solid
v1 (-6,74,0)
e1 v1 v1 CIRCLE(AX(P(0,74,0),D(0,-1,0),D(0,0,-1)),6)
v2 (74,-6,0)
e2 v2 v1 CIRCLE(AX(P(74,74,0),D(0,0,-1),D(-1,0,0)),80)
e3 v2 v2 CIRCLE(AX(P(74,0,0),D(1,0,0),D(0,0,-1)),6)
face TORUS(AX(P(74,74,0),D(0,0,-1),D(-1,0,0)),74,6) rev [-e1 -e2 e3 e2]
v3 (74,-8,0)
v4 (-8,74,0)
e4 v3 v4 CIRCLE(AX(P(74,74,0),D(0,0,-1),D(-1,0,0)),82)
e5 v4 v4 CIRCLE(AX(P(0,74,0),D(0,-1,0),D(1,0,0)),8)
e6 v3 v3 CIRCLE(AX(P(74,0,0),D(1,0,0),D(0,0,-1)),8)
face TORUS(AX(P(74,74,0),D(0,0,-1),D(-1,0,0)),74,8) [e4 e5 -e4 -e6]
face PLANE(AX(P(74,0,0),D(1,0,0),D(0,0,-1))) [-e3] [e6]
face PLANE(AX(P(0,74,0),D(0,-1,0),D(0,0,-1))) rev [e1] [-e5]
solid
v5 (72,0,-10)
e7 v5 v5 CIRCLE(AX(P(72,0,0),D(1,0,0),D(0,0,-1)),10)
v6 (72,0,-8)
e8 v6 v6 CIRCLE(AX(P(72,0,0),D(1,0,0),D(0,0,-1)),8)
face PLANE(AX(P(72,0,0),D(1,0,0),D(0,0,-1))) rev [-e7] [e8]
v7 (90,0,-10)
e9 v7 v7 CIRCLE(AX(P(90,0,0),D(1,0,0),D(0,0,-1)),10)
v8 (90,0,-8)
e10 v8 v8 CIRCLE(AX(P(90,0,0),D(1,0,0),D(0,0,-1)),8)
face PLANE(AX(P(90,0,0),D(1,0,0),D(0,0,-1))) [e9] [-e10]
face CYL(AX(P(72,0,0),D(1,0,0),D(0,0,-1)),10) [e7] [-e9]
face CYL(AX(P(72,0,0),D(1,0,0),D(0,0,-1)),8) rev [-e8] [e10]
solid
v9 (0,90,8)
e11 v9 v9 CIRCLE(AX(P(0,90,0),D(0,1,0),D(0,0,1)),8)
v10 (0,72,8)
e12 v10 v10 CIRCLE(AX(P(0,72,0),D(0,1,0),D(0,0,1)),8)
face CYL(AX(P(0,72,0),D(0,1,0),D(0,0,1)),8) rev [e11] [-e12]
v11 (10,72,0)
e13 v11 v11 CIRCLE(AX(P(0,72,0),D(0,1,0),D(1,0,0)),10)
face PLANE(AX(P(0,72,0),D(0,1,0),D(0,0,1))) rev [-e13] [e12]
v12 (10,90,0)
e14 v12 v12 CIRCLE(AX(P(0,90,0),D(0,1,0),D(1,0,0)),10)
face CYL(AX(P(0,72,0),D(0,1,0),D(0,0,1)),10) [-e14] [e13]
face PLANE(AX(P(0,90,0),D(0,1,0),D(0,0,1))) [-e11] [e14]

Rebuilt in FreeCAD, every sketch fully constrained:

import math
import FreeCAD as App
import Part
import Sketcher

V = App.Vector

doc = App.newDocument("Part")
params = doc.addObject("Spreadsheet::Sheet", "Params")
for row, (alias, value) in enumerate([
    ("sketch1_diameter", "16 mm"),
    ("sketch1_diameter2", "12 mm"),
    ("sketch2_radius", "74 mm"),
    ("sketch3_diameter", "20 mm"),
    ("sketch3_diameter2", "16 mm"),
    ("pad1_length", "16 mm"),
    ("pad1_length2", "2 mm"),
    ("sketch4_diameter", "20 mm"),
    ("sketch4_diameter2", "16 mm"),
    ("pad2_length", "16 mm"),
    ("pad2_length2", "2 mm"),
], start=1):
    params.set(f"A{row}", alias)
    params.set(f"B{row}", "=" + value)
    params.setAlias(f"B{row}", alias)

body = doc.addObject("PartDesign::Body", "Body")

# Sketch on YZ plane
sketch1 = body.newObject("Sketcher::SketchObject", "Sketch")
sketch1.AttachmentSupport = (doc.getObject("YZ_Plane"), [""])
sketch1.MapMode = "FlatFace"
sketch1.AttachmentOffset = App.Placement(V(0, 0, 74), App.Rotation())
sketch1.addGeometry(Part.Circle(V(0, 0, 0), V(0, 0, 1), 8), False)
sketch1.addGeometry(Part.Circle(V(0, 0, 0), V(0, 0, 1), 6), False)
sketch1.addConstraint(Sketcher.Constraint("Coincident", 0, 3, -1, 1))
sketch1.addConstraint(Sketcher.Constraint("Coincident", 1, 3, -1, 1))
sketch1.addConstraint(Sketcher.Constraint("Diameter", 0, 16.0))
sketch1.addConstraint(Sketcher.Constraint("Diameter", 1, 12.0))
sketch1.setExpression("Constraints[2]", "Params.sketch1_diameter")
sketch1.setExpression("Constraints[3]", "Params.sketch1_diameter2")

# Sketch on XY plane
sketch2 = body.newObject("Sketcher::SketchObject", "Sketch001")
sketch2.AttachmentSupport = (doc.getObject("XY_Plane"), [""])
sketch2.MapMode = "FlatFace"
sketch2.addGeometry(Part.ArcOfCircle(Part.Circle(V(74, 74, 0), V(0, 0, 1), 74), math.radians(180), math.radians(270)), False)
sketch2.addConstraint(Sketcher.Constraint("PointOnObject", 0, 1, -2))
sketch2.addConstraint(Sketcher.Constraint("PointOnObject", 0, 2, -1))
sketch2.addConstraint(Sketcher.Constraint("Radius", 0, 74.0))
sketch2.addConstraint(Sketcher.Constraint("DistanceY", -1, 1, 0, 1, 74.0))
sketch2.addConstraint(Sketcher.Constraint("DistanceX", -1, 1, 0, 2, 74.0))
sketch2.setExpression("Constraints[2]", "Params.sketch2_radius")
doc.recompute()

additivepipe = body.newObject("PartDesign::AdditivePipe", "AdditivePipe")
additivepipe.Profile = sketch1
additivepipe.Spine = (sketch2, ["Edge1"])
body2 = doc.addObject("PartDesign::Body", "Body001")

# Sketch on YZ plane
sketch3 = body2.newObject("Sketcher::SketchObject", "Sketch002")
sketch3.AttachmentSupport = (doc.getObject("YZ_Plane001"), [""])
sketch3.MapMode = "FlatFace"
sketch3.AttachmentOffset = App.Placement(V(0, 0, 74), App.Rotation())
sketch3.addGeometry(Part.Circle(V(0, 0, 0), V(0, 0, 1), 10), False)
sketch3.addGeometry(Part.Circle(V(0, 0, 0), V(0, 0, 1), 8), False)
sketch3.addConstraint(Sketcher.Constraint("Coincident", 0, 3, -1, 1))
sketch3.addConstraint(Sketcher.Constraint("Coincident", 1, 3, -1, 1))
sketch3.addConstraint(Sketcher.Constraint("Diameter", 0, 20.0))
sketch3.addConstraint(Sketcher.Constraint("Diameter", 1, 16.0))
sketch3.setExpression("Constraints[2]", "Params.sketch3_diameter")
sketch3.setExpression("Constraints[3]", "Params.sketch3_diameter2")
pad1 = body2.newObject("PartDesign::Pad", "Pad")
pad1.Profile = sketch3
pad1.Type = "TwoLengths"
pad1.setExpression("Length", "Params.pad1_length")
pad1.setExpression("Length2", "Params.pad1_length2")
body3 = doc.addObject("PartDesign::Body", "Body002")

# Sketch on XZ plane
sketch4 = body3.newObject("Sketcher::SketchObject", "Sketch003")
sketch4.AttachmentSupport = (doc.getObject("XZ_Plane002"), [""])
sketch4.MapMode = "FlatFace"
sketch4.AttachmentOffset = App.Placement(V(0, 0, -74), App.Rotation())
sketch4.addGeometry(Part.Circle(V(0, 0, 0), V(0, 0, 1), 10), False)
sketch4.addGeometry(Part.Circle(V(0, 0, 0), V(0, 0, 1), 8), False)
sketch4.addConstraint(Sketcher.Constraint("Coincident", 0, 3, -1, 1))
sketch4.addConstraint(Sketcher.Constraint("Coincident", 1, 3, -1, 1))
sketch4.addConstraint(Sketcher.Constraint("Diameter", 0, 20.0))
sketch4.addConstraint(Sketcher.Constraint("Diameter", 1, 16.0))
sketch4.setExpression("Constraints[2]", "Params.sketch4_diameter")
sketch4.setExpression("Constraints[3]", "Params.sketch4_diameter2")
pad2 = body3.newObject("PartDesign::Pad", "Pad001")
pad2.Profile = sketch4
pad2.Type = "TwoLengths"
pad2.setExpression("Length", "Params.pad2_length")
pad2.setExpression("Length2", "Params.pad2_length2")
pad2.Reversed = True

doc.recompute()
